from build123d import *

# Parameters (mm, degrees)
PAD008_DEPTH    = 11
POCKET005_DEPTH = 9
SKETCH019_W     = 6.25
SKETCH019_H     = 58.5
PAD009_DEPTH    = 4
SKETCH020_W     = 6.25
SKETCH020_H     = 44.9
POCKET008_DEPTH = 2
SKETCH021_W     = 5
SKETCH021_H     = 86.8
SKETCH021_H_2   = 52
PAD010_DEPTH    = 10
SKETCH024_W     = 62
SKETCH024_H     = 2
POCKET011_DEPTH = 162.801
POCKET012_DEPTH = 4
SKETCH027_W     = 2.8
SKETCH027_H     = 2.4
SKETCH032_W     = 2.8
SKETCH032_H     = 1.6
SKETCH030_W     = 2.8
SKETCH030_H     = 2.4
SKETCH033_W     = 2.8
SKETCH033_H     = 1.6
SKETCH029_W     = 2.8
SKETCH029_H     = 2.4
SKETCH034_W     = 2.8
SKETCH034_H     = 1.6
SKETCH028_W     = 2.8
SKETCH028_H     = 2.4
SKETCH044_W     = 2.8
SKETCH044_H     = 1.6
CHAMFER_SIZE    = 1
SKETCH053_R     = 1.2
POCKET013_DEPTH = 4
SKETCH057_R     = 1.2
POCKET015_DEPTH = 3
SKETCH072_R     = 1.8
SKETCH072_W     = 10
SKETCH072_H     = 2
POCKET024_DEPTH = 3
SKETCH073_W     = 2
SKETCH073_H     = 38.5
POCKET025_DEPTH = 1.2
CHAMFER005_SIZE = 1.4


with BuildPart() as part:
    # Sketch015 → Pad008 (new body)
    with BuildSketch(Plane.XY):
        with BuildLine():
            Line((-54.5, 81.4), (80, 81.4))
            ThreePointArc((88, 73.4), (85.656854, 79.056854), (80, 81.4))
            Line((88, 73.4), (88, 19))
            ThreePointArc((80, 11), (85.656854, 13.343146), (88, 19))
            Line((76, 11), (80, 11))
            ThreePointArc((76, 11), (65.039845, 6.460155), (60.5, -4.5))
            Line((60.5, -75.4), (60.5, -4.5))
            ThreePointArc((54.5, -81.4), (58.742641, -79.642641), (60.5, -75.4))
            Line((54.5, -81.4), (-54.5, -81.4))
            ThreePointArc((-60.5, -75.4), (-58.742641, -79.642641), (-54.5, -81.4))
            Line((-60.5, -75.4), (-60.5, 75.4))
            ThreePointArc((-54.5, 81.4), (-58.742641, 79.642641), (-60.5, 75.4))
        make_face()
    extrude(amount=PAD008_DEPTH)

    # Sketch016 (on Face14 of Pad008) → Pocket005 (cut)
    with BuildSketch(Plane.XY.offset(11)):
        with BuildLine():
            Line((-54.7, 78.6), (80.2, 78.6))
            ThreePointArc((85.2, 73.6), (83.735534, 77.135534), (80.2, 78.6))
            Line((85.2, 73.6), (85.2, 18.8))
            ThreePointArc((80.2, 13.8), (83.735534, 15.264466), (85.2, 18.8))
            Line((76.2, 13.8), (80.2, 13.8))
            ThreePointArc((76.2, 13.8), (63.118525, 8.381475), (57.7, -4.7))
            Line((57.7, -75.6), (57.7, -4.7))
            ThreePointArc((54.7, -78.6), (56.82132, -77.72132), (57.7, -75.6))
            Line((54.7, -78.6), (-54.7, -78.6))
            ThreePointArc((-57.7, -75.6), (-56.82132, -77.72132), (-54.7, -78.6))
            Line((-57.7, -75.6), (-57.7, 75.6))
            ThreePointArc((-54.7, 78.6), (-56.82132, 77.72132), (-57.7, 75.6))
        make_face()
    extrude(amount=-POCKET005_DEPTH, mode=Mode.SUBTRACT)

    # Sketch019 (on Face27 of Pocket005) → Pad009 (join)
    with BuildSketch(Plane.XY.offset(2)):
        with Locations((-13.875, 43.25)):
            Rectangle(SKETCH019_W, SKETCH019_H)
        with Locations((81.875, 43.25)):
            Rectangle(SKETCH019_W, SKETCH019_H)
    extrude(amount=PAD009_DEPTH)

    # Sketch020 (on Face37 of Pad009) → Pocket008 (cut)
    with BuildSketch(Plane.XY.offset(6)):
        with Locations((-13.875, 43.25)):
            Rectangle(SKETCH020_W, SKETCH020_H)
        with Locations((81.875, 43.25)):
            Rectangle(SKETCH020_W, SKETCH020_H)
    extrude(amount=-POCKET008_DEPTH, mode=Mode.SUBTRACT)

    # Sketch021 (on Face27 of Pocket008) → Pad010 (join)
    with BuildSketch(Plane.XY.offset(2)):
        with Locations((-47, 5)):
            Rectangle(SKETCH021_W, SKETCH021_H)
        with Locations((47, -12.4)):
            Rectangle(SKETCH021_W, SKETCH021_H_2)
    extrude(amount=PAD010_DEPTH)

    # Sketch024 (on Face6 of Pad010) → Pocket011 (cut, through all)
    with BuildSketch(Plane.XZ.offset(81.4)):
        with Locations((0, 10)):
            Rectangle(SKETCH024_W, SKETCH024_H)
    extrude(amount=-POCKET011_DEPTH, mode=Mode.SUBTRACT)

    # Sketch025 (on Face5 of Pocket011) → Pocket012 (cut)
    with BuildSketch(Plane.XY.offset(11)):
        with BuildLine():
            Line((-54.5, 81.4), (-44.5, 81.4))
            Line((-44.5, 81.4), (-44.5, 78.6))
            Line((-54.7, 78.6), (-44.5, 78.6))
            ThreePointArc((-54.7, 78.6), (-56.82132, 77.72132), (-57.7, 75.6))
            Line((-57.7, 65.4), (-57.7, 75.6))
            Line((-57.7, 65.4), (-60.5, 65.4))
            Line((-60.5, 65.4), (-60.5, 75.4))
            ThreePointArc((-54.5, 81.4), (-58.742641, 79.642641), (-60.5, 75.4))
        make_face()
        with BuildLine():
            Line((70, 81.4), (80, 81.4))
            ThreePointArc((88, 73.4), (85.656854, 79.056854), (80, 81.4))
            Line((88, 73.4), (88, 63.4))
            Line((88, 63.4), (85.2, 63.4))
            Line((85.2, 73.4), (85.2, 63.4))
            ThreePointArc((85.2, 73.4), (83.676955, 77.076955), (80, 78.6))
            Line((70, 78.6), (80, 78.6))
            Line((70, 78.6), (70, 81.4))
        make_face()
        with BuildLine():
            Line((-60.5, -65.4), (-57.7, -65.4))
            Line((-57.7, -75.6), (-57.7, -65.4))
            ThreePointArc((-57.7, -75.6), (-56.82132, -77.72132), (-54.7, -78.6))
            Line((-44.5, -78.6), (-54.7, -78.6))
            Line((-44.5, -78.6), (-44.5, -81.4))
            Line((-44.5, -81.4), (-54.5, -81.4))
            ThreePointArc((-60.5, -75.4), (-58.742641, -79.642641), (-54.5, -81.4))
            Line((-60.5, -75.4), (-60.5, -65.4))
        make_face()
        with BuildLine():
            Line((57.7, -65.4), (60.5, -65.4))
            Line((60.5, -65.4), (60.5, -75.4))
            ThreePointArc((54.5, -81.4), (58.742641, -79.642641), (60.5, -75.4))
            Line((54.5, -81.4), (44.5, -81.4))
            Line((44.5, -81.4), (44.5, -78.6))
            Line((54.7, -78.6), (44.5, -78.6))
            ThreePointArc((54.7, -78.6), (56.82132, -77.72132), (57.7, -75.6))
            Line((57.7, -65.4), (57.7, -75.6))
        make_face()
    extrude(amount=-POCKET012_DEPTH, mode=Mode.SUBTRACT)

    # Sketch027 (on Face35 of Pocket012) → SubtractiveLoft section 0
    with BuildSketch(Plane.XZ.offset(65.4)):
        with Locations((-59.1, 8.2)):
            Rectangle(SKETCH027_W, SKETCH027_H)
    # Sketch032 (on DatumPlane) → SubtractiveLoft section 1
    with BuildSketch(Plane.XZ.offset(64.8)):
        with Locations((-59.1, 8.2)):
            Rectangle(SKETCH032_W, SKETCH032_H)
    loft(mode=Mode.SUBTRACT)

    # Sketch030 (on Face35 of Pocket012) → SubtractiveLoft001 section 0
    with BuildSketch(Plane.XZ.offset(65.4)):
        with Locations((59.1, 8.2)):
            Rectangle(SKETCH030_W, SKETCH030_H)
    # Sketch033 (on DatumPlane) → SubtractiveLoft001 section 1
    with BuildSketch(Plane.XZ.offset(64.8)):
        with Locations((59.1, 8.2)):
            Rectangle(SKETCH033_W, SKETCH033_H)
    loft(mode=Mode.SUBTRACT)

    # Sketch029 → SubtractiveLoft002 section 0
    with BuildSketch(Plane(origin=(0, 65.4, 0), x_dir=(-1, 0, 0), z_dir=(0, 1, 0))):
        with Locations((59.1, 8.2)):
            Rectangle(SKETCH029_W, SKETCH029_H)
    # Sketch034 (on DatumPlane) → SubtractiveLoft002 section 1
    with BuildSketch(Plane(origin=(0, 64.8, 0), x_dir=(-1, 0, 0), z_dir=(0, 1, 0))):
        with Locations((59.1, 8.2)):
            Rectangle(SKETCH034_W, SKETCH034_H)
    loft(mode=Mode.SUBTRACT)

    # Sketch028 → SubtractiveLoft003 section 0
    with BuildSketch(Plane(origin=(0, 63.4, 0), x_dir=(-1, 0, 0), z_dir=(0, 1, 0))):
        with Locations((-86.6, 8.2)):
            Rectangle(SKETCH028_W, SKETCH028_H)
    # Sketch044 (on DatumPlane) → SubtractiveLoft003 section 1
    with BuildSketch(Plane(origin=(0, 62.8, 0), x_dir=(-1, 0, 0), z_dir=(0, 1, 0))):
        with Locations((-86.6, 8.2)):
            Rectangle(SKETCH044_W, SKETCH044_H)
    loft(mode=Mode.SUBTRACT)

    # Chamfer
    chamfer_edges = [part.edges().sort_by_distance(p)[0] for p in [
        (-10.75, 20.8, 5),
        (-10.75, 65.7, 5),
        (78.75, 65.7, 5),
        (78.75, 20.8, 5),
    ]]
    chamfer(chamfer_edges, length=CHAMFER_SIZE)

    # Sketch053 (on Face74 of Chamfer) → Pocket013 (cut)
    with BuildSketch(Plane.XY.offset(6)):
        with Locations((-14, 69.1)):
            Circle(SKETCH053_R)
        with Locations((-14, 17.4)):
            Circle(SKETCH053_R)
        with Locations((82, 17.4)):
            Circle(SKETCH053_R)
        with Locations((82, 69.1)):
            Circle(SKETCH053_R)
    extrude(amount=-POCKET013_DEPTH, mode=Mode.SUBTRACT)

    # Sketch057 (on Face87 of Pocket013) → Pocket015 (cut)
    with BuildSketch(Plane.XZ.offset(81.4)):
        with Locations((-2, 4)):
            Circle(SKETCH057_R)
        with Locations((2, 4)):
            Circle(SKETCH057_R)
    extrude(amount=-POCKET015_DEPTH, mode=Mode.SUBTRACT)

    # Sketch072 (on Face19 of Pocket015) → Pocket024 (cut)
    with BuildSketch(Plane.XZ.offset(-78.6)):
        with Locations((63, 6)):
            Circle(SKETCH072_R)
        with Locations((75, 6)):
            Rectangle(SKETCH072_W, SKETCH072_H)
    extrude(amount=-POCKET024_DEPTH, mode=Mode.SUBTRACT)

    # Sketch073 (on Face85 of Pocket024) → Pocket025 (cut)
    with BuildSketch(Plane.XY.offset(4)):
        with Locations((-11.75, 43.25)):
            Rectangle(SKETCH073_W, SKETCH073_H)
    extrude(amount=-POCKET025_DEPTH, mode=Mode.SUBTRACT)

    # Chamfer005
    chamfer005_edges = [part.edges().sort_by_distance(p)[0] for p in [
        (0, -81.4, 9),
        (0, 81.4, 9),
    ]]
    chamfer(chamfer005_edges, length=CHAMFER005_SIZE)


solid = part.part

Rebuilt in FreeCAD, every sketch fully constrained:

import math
import FreeCAD as App
import Part
import Sketcher


def edges_at(feature, points):
    """Names of the edges that pass closest to the given points."""
    edges = feature.Shape.Edges
    near = lambda p: min(range(len(edges)), key=lambda i: edges[i].distToShape(Part.Vertex(*p))[0])
    return sorted({f"Edge{near(p) + 1}" for p in points})

doc = App.newDocument("Part")
body = doc.addObject("PartDesign::Body", "Body")

sketch1 = body.newObject("Sketcher::SketchObject", "Sketch")
sketch1.AttachmentSupport = (doc.getObject("XY_Plane"), [""])
sketch1.MapMode = "FlatFace"
sketch1.addGeometry(Part.LineSegment(App.Vector(80, 81.4, 0), App.Vector(-54.5, 81.4, 0)), False)
sketch1.addGeometry(Part.ArcOfCircle(Part.Circle(App.Vector(-54.500001, 75.400001, 0), App.Vector(0, 0, 1), 5.999999), math.radians(89.99999), math.radians(180.00001)), False)
sketch1.addGeometry(Part.LineSegment(App.Vector(-60.5, 75.4, 0), App.Vector(-60.5, -75.4, 0)), False)
sketch1.addGeometry(Part.ArcOfCircle(Part.Circle(App.Vector(-54.500001, -75.400001, 0), App.Vector(0, 0, 1), 5.999999), math.radians(179.99999), math.radians(270.00001)), False)
sketch1.addGeometry(Part.LineSegment(App.Vector(-54.5, -81.4, 0), App.Vector(54.5, -81.4, 0)), False)
sketch1.addGeometry(Part.ArcOfCircle(Part.Circle(App.Vector(54.500001, -75.400001, 0), App.Vector(0, 0, 1), 5.999999), math.radians(-90.00001), math.radians(0.00001)), False)
sketch1.addGeometry(Part.LineSegment(App.Vector(60.5, -75.4, 0), App.Vector(60.5, -4.5, 0)), False)
sketch1.addGeometry(Part.ArcOfCircle(Part.Circle(App.Vector(76, -4.5, 0), App.Vector(0, 0, 1), 15.5), math.radians(90.000001), math.radians(179.999999)), False)
sketch1.addGeometry(Part.LineSegment(App.Vector(76, 11, 0), App.Vector(80, 11, 0)), False)
sketch1.addGeometry(Part.ArcOfCircle(Part.Circle(App.Vector(79.999999, 19.000001, 0), App.Vector(0, 0, 1), 8.000001), math.radians(-89.999994), math.radians(-0.000006)), False)
sketch1.addGeometry(Part.LineSegment(App.Vector(88, 19, 0), App.Vector(88, 73.4, 0)), False)
sketch1.addGeometry(Part.ArcOfCircle(Part.Circle(App.Vector(79.999999, 73.399999, 0), App.Vector(0, 0, 1), 8.000001), math.radians(0.000006), math.radians(89.999994)), False)
sketch1.addConstraint(Sketcher.Constraint("Tangent", 0, 2, 1, 1))
sketch1.addConstraint(Sketcher.Constraint("Tangent", 1, 2, 2, 1))
sketch1.addConstraint(Sketcher.Constraint("Tangent", 2, 2, 3, 1))
sketch1.addConstraint(Sketcher.Constraint("Tangent", 3, 2, 4, 1))
sketch1.addConstraint(Sketcher.Constraint("Tangent", 4, 2, 5, 1))
sketch1.addConstraint(Sketcher.Constraint("Tangent", 5, 2, 6, 1))
sketch1.addConstraint(Sketcher.Constraint("Tangent", 6, 2, 7, 2))
sketch1.addConstraint(Sketcher.Constraint("Tangent", 7, 1, 8, 1))
sketch1.addConstraint(Sketcher.Constraint("Tangent", 8, 2, 9, 1))
sketch1.addConstraint(Sketcher.Constraint("Tangent", 9, 2, 10, 1))
sketch1.addConstraint(Sketcher.Constraint("Tangent", 10, 2, 11, 1))
sketch1.addConstraint(Sketcher.Constraint("Tangent", 11, 2, 0, 1))
sketch1.addConstraint(Sketcher.Constraint("Horizontal", 0))
sketch1.addConstraint(Sketcher.Constraint("Vertical", 2))
sketch1.addConstraint(Sketcher.Constraint("Horizontal", 4))
sketch1.addConstraint(Sketcher.Constraint("Vertical", 6))
sketch1.addConstraint(Sketcher.Constraint("Horizontal", 8))
sketch1.addConstraint(Sketcher.Constraint("Vertical", 10))
sketch1.addConstraint(Sketcher.Constraint("Equal", 1, 3))
sketch1.addConstraint(Sketcher.Constraint("Equal", 3, 5))
sketch1.addConstraint(Sketcher.Constraint("Equal", 9, 11))
sketch1.addConstraint(Sketcher.Constraint("Symmetric", 1, 3, 5, 3, -1, 1))
sketch1.addConstraint(Sketcher.Constraint("Radius", 1, 5.999999))
sketch1.addConstraint(Sketcher.Constraint("Radius", 9, 8.000001))
sketch1.addConstraint(Sketcher.Constraint("Radius", 7, 15.5))
sketch1.addConstraint(Sketcher.Constraint("DistanceX", 4, 1, 4, 2, 109.0))
sketch1.addConstraint(Sketcher.Constraint("DistanceX", 8, 1, 8, 2, 4.0))
sketch1.addConstraint(Sketcher.Constraint("DistanceY", 2, 2, 2, 1, 150.8))
sketch1.addConstraint(Sketcher.Constraint("DistanceY", 6, 1, 6, 2, 70.9))
pad1 = body.newObject("PartDesign::Pad", "Pad")
pad1.Profile = sketch1
pad1.Length = 11

sketch2 = body.newObject("Sketcher::SketchObject", "Sketch001")
sketch2.AttachmentSupport = (doc.getObject("XY_Plane"), [""])
sketch2.MapMode = "FlatFace"
sketch2.AttachmentOffset = App.Placement(App.Vector(0, 0, 11), App.Rotation())
sketch2.addGeometry(Part.LineSegment(App.Vector(80.2, 78.6, 0), App.Vector(-54.7, 78.6, 0)), False)
sketch2.addGeometry(Part.ArcOfCircle(Part.Circle(App.Vector(-54.699999, 75.599999, 0), App.Vector(0, 0, 1), 3.000001), math.radians(90.000022), math.radians(179.999978)), False)
sketch2.addGeometry(Part.LineSegment(App.Vector(-57.7, 75.6, 0), App.Vector(-57.7, -75.6, 0)), False)
sketch2.addGeometry(Part.ArcOfCircle(Part.Circle(App.Vector(-54.699999, -75.599999, 0), App.Vector(0, 0, 1), 3.000001), math.radians(-179.999978), math.radians(-90.000022)), False)
sketch2.addGeometry(Part.LineSegment(App.Vector(-54.7, -78.6, 0), App.Vector(54.7, -78.6, 0)), False)
sketch2.addGeometry(Part.ArcOfCircle(Part.Circle(App.Vector(54.699999, -75.599999, 0), App.Vector(0, 0, 1), 3.000001), math.radians(-89.999978), math.radians(-0.000022)), False)
sketch2.addGeometry(Part.LineSegment(App.Vector(57.7, -75.6, 0), App.Vector(57.7, -4.7, 0)), False)
sketch2.addGeometry(Part.ArcOfCircle(Part.Circle(App.Vector(76.200002, -4.700002, 0), App.Vector(0, 0, 1), 18.500002), math.radians(90.000005), math.radians(179.999995)), False)
sketch2.addGeometry(Part.LineSegment(App.Vector(76.2, 13.8, 0), App.Vector(80.2, 13.8, 0)), False)
sketch2.addGeometry(Part.ArcOfCircle(Part.Circle(App.Vector(80.2, 18.8, 0), App.Vector(0, 0, 1), 5), math.radians(-90.000004), math.radians(0.000004)), False)
sketch2.addGeometry(Part.LineSegment(App.Vector(85.2, 18.8, 0), App.Vector(85.2, 73.6, 0)), False)
sketch2.addGeometry(Part.ArcOfCircle(Part.Circle(App.Vector(80.2, 73.6, 0), App.Vector(0, 0, 1), 5), math.radians(-0.000004), math.radians(90.000004)), False)
sketch2.addConstraint(Sketcher.Constraint("Tangent", 0, 2, 1, 1))
sketch2.addConstraint(Sketcher.Constraint("Tangent", 1, 2, 2, 1))
sketch2.addConstraint(Sketcher.Constraint("Tangent", 2, 2, 3, 1))
sketch2.addConstraint(Sketcher.Constraint("Tangent", 3, 2, 4, 1))
sketch2.addConstraint(Sketcher.Constraint("Tangent", 4, 2, 5, 1))
sketch2.addConstraint(Sketcher.Constraint("Tangent", 5, 2, 6, 1))
sketch2.addConstraint(Sketcher.Constraint("Tangent", 6, 2, 7, 2))
sketch2.addConstraint(Sketcher.Constraint("Tangent", 7, 1, 8, 1))
sketch2.addConstraint(Sketcher.Constraint("Tangent", 8, 2, 9, 1))
sketch2.addConstraint(Sketcher.Constraint("Tangent", 9, 2, 10, 1))
sketch2.addConstraint(Sketcher.Constraint("Tangent", 10, 2, 11, 1))
sketch2.addConstraint(Sketcher.Constraint("Tangent", 11, 2, 0, 1))
sketch2.addConstraint(Sketcher.Constraint("Horizontal", 0))
sketch2.addConstraint(Sketcher.Constraint("Vertical", 2))
sketch2.addConstraint(Sketcher.Constraint("Horizontal", 4))
sketch2.addConstraint(Sketcher.Constraint("Vertical", 6))
sketch2.addConstraint(Sketcher.Constraint("Horizontal", 8))
sketch2.addConstraint(Sketcher.Constraint("Vertical", 10))
sketch2.addConstraint(Sketcher.Constraint("Equal", 1, 3))
sketch2.addConstraint(Sketcher.Constraint("Equal", 3, 5))
sketch2.addConstraint(Sketcher.Constraint("Equal", 9, 11))
sketch2.addConstraint(Sketcher.Constraint("Symmetric", 1, 3, 5, 3, -1, 1))
sketch2.addConstraint(Sketcher.Constraint("Radius", 1, 3.000001))
sketch2.addConstraint(Sketcher.Constraint("Radius", 9, 5.0))
sketch2.addConstraint(Sketcher.Constraint("Radius", 7, 18.500002))
sketch2.addConstraint(Sketcher.Constraint("DistanceX", 8, 1, 8, 2, 4.0))
sketch2.addConstraint(Sketcher.Constraint("DistanceX", 0, 2, 0, 1, 134.9))
sketch2.addConstraint(Sketcher.Constraint("DistanceY", 2, 2, 2, 1, 151.2))
sketch2.addConstraint(Sketcher.Constraint("DistanceY", 6, 1, 6, 2, 70.9))
pocket1 = body.newObject("PartDesign::Pocket", "Pocket")
pocket1.Profile = sketch2
pocket1.Length = 9

sketch3 = body.newObject("Sketcher::SketchObject", "Sketch002")
sketch3.AttachmentSupport = (doc.getObject("XY_Plane"), [""])
sketch3.MapMode = "FlatFace"
sketch3.AttachmentOffset = App.Placement(App.Vector(0, 0, 2), App.Rotation())
sketch3.addGeometry(Part.LineSegment(App.Vector(-17, 72.5, 0), App.Vector(-17, 14, 0)), False)
sketch3.addGeometry(Part.LineSegment(App.Vector(-17, 14, 0), App.Vector(-10.75, 14, 0)), False)
sketch3.addGeometry(Part.LineSegment(App.Vector(-10.75, 14, 0), App.Vector(-10.75, 72.5, 0)), False)
sketch3.addGeometry(Part.LineSegment(App.Vector(-10.75, 72.5, 0), App.Vector(-17, 72.5, 0)), False)
sketch3.addGeometry(Part.LineSegment(App.Vector(78.75, 72.5, 0), App.Vector(78.75, 14, 0)), False)
sketch3.addGeometry(Part.LineSegment(App.Vector(78.75, 14, 0), App.Vector(85, 14, 0)), False)
sketch3.addGeometry(Part.LineSegment(App.Vector(85, 14, 0), App.Vector(85, 72.5, 0)), False)
sketch3.addGeometry(Part.LineSegment(App.Vector(85, 72.5, 0), App.Vector(78.75, 72.5, 0)), False)
sketch3.addConstraint(Sketcher.Constraint("Coincident", 0, 2, 1, 1))
sketch3.addConstraint(Sketcher.Constraint("Coincident", 1, 2, 2, 1))
sketch3.addConstraint(Sketcher.Constraint("Coincident", 2, 2, 3, 1))
sketch3.addConstraint(Sketcher.Constraint("Coincident", 3, 2, 0, 1))
sketch3.addConstraint(Sketcher.Constraint("Coincident", 4, 2, 5, 1))
sketch3.addConstraint(Sketcher.Constraint("Coincident", 5, 2, 6, 1))
sketch3.addConstraint(Sketcher.Constraint("Coincident", 6, 2, 7, 1))
sketch3.addConstraint(Sketcher.Constraint("Coincident", 7, 2, 4, 1))
sketch3.addConstraint(Sketcher.Constraint("Vertical", 0))
sketch3.addConstraint(Sketcher.Constraint("Horizontal", 1))
sketch3.addConstraint(Sketcher.Constraint("Vertical", 2))
sketch3.addConstraint(Sketcher.Constraint("Horizontal", 3))
sketch3.addConstraint(Sketcher.Constraint("Vertical", 4))
sketch3.addConstraint(Sketcher.Constraint("Horizontal", 5))
sketch3.addConstraint(Sketcher.Constraint("Vertical", 6))
sketch3.addConstraint(Sketcher.Constraint("Horizontal", 7))
sketch3.addConstraint(Sketcher.Constraint("Horizontal", 1, 2, 4, 2))
sketch3.addConstraint(Sketcher.Constraint("Horizontal", 3, 2, 6, 2))
sketch3.addConstraint(Sketcher.Constraint("Equal", 3, 5))
sketch3.addConstraint(Sketcher.Constraint("DistanceY", 0, 2, 0, 1, 58.5))
sketch3.addConstraint(Sketcher.Constraint("DistanceX", 0, 2, -1, 1, 17.0))
sketch3.addConstraint(Sketcher.Constraint("DistanceY", -1, 1, 0, 2, 14.0))
sketch3.addConstraint(Sketcher.Constraint("DistanceX", -1, 1, 5, 2, 85.0))
sketch3.addConstraint(Sketcher.Constraint("DistanceX", 1, 1, 1, 2, 6.25))
pad2 = body.newObject("PartDesign::Pad", "Pad001")
pad2.Profile = sketch3
pad2.Length = 4

sketch4 = body.newObject("Sketcher::SketchObject", "Sketch003")
sketch4.AttachmentSupport = (doc.getObject("XY_Plane"), [""])
sketch4.MapMode = "FlatFace"
sketch4.AttachmentOffset = App.Placement(App.Vector(0, 0, 6), App.Rotation())
sketch4.addGeometry(Part.LineSegment(App.Vector(-17, 65.7, 0), App.Vector(-17, 20.8, 0)), False)
sketch4.addGeometry(Part.LineSegment(App.Vector(-17, 20.8, 0), App.Vector(-10.75, 20.8, 0)), False)
sketch4.addGeometry(Part.LineSegment(App.Vector(-10.75, 20.8, 0), App.Vector(-10.75, 65.7, 0)), False)
sketch4.addGeometry(Part.LineSegment(App.Vector(-10.75, 65.7, 0), App.Vector(-17, 65.7, 0)), False)
sketch4.addGeometry(Part.LineSegment(App.Vector(78.75, 65.7, 0), App.Vector(78.75, 20.8, 0)), False)
sketch4.addGeometry(Part.LineSegment(App.Vector(78.75, 20.8, 0), App.Vector(85, 20.8, 0)), False)
sketch4.addGeometry(Part.LineSegment(App.Vector(85, 20.8, 0), App.Vector(85, 65.7, 0)), False)
sketch4.addGeometry(Part.LineSegment(App.Vector(85, 65.7, 0), App.Vector(78.75, 65.7, 0)), False)
sketch4.addConstraint(Sketcher.Constraint("Coincident", 0, 2, 1, 1))
sketch4.addConstraint(Sketcher.Constraint("Coincident", 1, 2, 2, 1))
sketch4.addConstraint(Sketcher.Constraint("Coincident", 2, 2, 3, 1))
sketch4.addConstraint(Sketcher.Constraint("Coincident", 3, 2, 0, 1))
sketch4.addConstraint(Sketcher.Constraint("Coincident", 4, 2, 5, 1))
sketch4.addConstraint(Sketcher.Constraint("Coincident", 5, 2, 6, 1))
sketch4.addConstraint(Sketcher.Constraint("Coincident", 6, 2, 7, 1))
sketch4.addConstraint(Sketcher.Constraint("Coincident", 7, 2, 4, 1))
sketch4.addConstraint(Sketcher.Constraint("Vertical", 0))
sketch4.addConstraint(Sketcher.Constraint("Horizontal", 1))
sketch4.addConstraint(Sketcher.Constraint("Vertical", 2))
sketch4.addConstraint(Sketcher.Constraint("Horizontal", 3))
sketch4.addConstraint(Sketcher.Constraint("Vertical", 4))
sketch4.addConstraint(Sketcher.Constraint("Horizontal", 5))
sketch4.addConstraint(Sketcher.Constraint("Vertical", 6))
sketch4.addConstraint(Sketcher.Constraint("Horizontal", 7))
sketch4.addConstraint(Sketcher.Constraint("Horizontal", 1, 2, 4, 2))
sketch4.addConstraint(Sketcher.Constraint("Horizontal", 3, 2, 6, 2))
sketch4.addConstraint(Sketcher.Constraint("Equal", 3, 5))
sketch4.addConstraint(Sketcher.Constraint("DistanceY", 0, 2, 0, 1, 44.9))
sketch4.addConstraint(Sketcher.Constraint("DistanceX", 0, 2, -1, 1, 17.0))
sketch4.addConstraint(Sketcher.Constraint("DistanceX", -1, 1, 5, 2, 85.0))
sketch4.addConstraint(Sketcher.Constraint("DistanceX", 1, 1, 1, 2, 6.25))
sketch4.addConstraint(Sketcher.Constraint("DistanceY", -1, 1, 0, 2, 20.8))
pocket2 = body.newObject("PartDesign::Pocket", "Pocket001")
pocket2.Profile = sketch4
pocket2.Length = 2

sketch5 = body.newObject("Sketcher::SketchObject", "Sketch004")
sketch5.AttachmentSupport = (doc.getObject("XY_Plane"), [""])
sketch5.MapMode = "FlatFace"
sketch5.AttachmentOffset = App.Placement(App.Vector(0, 0, 2), App.Rotation())
sketch5.addGeometry(Part.LineSegment(App.Vector(-49.5, 48.4, 0), App.Vector(-49.5, -38.4, 0)), False)
sketch5.addGeometry(Part.LineSegment(App.Vector(-49.5, -38.4, 0), App.Vector(-44.5, -38.4, 0)), False)
sketch5.addGeometry(Part.LineSegment(App.Vector(-44.5, -38.4, 0), App.Vector(-44.5, 48.4, 0)), False)
sketch5.addGeometry(Part.LineSegment(App.Vector(-44.5, 48.4, 0), App.Vector(-49.5, 48.4, 0)), False)
sketch5.addGeometry(Part.LineSegment(App.Vector(44.5, 13.6, 0), App.Vector(44.5, -38.4, 0)), False)
sketch5.addGeometry(Part.LineSegment(App.Vector(44.5, -38.4, 0), App.Vector(49.5, -38.4, 0)), False)
sketch5.addGeometry(Part.LineSegment(App.Vector(49.5, -38.4, 0), App.Vector(49.5, 13.6, 0)), False)
sketch5.addGeometry(Part.LineSegment(App.Vector(49.5, 13.6, 0), App.Vector(44.5, 13.6, 0)), False)
sketch5.addConstraint(Sketcher.Constraint("Coincident", 0, 2, 1, 1))
sketch5.addConstraint(Sketcher.Constraint("Coincident", 1, 2, 2, 1))
sketch5.addConstraint(Sketcher.Constraint("Coincident", 2, 2, 3, 1))
sketch5.addConstraint(Sketcher.Constraint("Coincident", 3, 2, 0, 1))
sketch5.addConstraint(Sketcher.Constraint("Coincident", 4, 2, 5, 1))
sketch5.addConstraint(Sketcher.Constraint("Coincident", 5, 2, 6, 1))
sketch5.addConstraint(Sketcher.Constraint("Coincident", 6, 2, 7, 1))
sketch5.addConstraint(Sketcher.Constraint("Coincident", 7, 2, 4, 1))
sketch5.addConstraint(Sketcher.Constraint("Vertical", 0))
sketch5.addConstraint(Sketcher.Constraint("Horizontal", 1))
sketch5.addConstraint(Sketcher.Constraint("Vertical", 2))
sketch5.addConstraint(Sketcher.Constraint("Horizontal", 3))
sketch5.addConstraint(Sketcher.Constraint("Vertical", 4))
sketch5.addConstraint(Sketcher.Constraint("Horizontal", 5))
sketch5.addConstraint(Sketcher.Constraint("Vertical", 6))
sketch5.addConstraint(Sketcher.Constraint("Horizontal", 7))
sketch5.addConstraint(Sketcher.Constraint("Symmetric", 1, 2, 4, 2, -2))
sketch5.addConstraint(Sketcher.Constraint("Equal", 3, 5))
sketch5.addConstraint(Sketcher.Constraint("DistanceX", 1, 1, 1, 2, 5.0))
sketch5.addConstraint(Sketcher.Constraint("DistanceY", 4, 2, 4, 1, 52.0))
sketch5.addConstraint(Sketcher.Constraint("DistanceY", 0, 2, 0, 1, 86.8))
sketch5.addConstraint(Sketcher.Constraint("DistanceX", 1, 2, 4, 2, 89.0))
sketch5.addConstraint(Sketcher.Constraint("DistanceY", 0, 2, -1, 1, 38.4))
pad3 = body.newObject("PartDesign::Pad", "Pad002")
pad3.Profile = sketch5
pad3.Length = 10

sketch6 = body.newObject("Sketcher::SketchObject", "Sketch005")
sketch6.AttachmentSupport = (doc.getObject("XZ_Plane"), [""])
sketch6.MapMode = "FlatFace"
sketch6.AttachmentOffset = App.Placement(App.Vector(0, 0, 81.4), App.Rotation())
sketch6.addGeometry(Part.LineSegment(App.Vector(-31, 11, 0), App.Vector(-31, 9, 0)), False)
sketch6.addGeometry(Part.LineSegment(App.Vector(-31, 9, 0), App.Vector(31, 9, 0)), False)
sketch6.addGeometry(Part.LineSegment(App.Vector(31, 9, 0), App.Vector(31, 11, 0)), False)
sketch6.addGeometry(Part.LineSegment(App.Vector(31, 11, 0), App.Vector(-31, 11, 0)), False)
sketch6.addConstraint(Sketcher.Constraint("Coincident", 0, 2, 1, 1))
sketch6.addConstraint(Sketcher.Constraint("Coincident", 1, 2, 2, 1))
sketch6.addConstraint(Sketcher.Constraint("Coincident", 2, 2, 3, 1))
sketch6.addConstraint(Sketcher.Constraint("Coincident", 3, 2, 0, 1))
sketch6.addConstraint(Sketcher.Constraint("Vertical", 0))
sketch6.addConstraint(Sketcher.Constraint("Horizontal", 1))
sketch6.addConstraint(Sketcher.Constraint("Vertical", 2))
sketch6.addConstraint(Sketcher.Constraint("Horizontal", 3))
sketch6.addConstraint(Sketcher.Constraint("DistanceX", 1, 1, 1, 2, 62.0))
sketch6.addConstraint(Sketcher.Constraint("DistanceY", 0, 2, 0, 1, 2.0))
sketch6.addConstraint(Sketcher.Constraint("DistanceX", 0, 2, -1, 1, 31.0))
sketch6.addConstraint(Sketcher.Constraint("DistanceY", -1, 1, 0, 2, 9.0))
pocket3 = body.newObject("PartDesign::Pocket", "Pocket002")
pocket3.Profile = sketch6
pocket3.Type = "ThroughAll"

sketch7 = body.newObject("Sketcher::SketchObject", "Sketch006")
sketch7.AttachmentSupport = (doc.getObject("XY_Plane"), [""])
sketch7.MapMode = "FlatFace"
sketch7.AttachmentOffset = App.Placement(App.Vector(0, 0, 11), App.Rotation())
sketch7.addGeometry(Part.LineSegment(App.Vector(-44.5, 81.4, 0), App.Vector(-54.5, 81.4, 0)), False)
sketch7.addGeometry(Part.ArcOfCircle(Part.Circle(App.Vector(-54.500001, 75.400001, 0), App.Vector(0, 0, 1), 5.999999), math.radians(89.99999), math.radians(180.00001)), False)
sketch7.addGeometry(Part.LineSegment(App.Vector(-60.5, 75.4, 0), App.Vector(-60.5, 65.4, 0)), False)
sketch7.addGeometry(Part.LineSegment(App.Vector(-60.5, 65.4, 0), App.Vector(-57.7, 65.4, 0)), False)
sketch7.addGeometry(Part.LineSegment(App.Vector(-57.7, 65.4, 0), App.Vector(-57.7, 75.6, 0)), False)
sketch7.addGeometry(Part.ArcOfCircle(Part.Circle(App.Vector(-54.699999, 75.599999, 0), App.Vector(0, 0, 1), 3.000001), math.radians(90.000022), math.radians(179.999978)), False)
sketch7.addGeometry(Part.LineSegment(App.Vector(-54.7, 78.6, 0), App.Vector(-44.5, 78.6, 0)), False)
sketch7.addGeometry(Part.LineSegment(App.Vector(-44.5, 78.6, 0), App.Vector(-44.5, 81.4, 0)), False)
sketch7.addGeometry(Part.LineSegment(App.Vector(80, 81.4, 0), App.Vector(70, 81.4, 0)), False)
sketch7.addGeometry(Part.LineSegment(App.Vector(70, 81.4, 0), App.Vector(70, 78.6, 0)), False)
sketch7.addGeometry(Part.LineSegment(App.Vector(70, 78.6, 0), App.Vector(80, 78.6, 0)), False)
sketch7.addGeometry(Part.ArcOfCircle(Part.Circle(App.Vector(79.999999, 73.399999, 0), App.Vector(0, 0, 1), 5.200001), math.radians(0.00001), math.radians(89.99999)), False)
sketch7.addGeometry(Part.LineSegment(App.Vector(85.2, 73.4, 0), App.Vector(85.2, 63.4, 0)), False)
sketch7.addGeometry(Part.LineSegment(App.Vector(85.2, 63.4, 0), App.Vector(88, 63.4, 0)), False)
sketch7.addGeometry(Part.LineSegment(App.Vector(88, 63.4, 0), App.Vector(88, 73.4, 0)), False)
sketch7.addGeometry(Part.ArcOfCircle(Part.Circle(App.Vector(79.999999, 73.399999, 0), App.Vector(0, 0, 1), 8.000001), math.radians(0.000006), math.radians(89.999994)), False)
sketch7.addGeometry(Part.LineSegment(App.Vector(-57.7, -65.4, 0), App.Vector(-60.5, -65.4, 0)), False)
sketch7.addGeometry(Part.LineSegment(App.Vector(-60.5, -65.4, 0), App.Vector(-60.5, -75.4, 0)), False)
sketch7.addGeometry(Part.ArcOfCircle(Part.Circle(App.Vector(-54.500001, -75.400001, 0), App.Vector(0, 0, 1), 5.999999), math.radians(179.99999), math.radians(270.00001)), False)
sketch7.addGeometry(Part.LineSegment(App.Vector(-54.5, -81.4, 0), App.Vector(-44.5, -81.4, 0)), False)
sketch7.addGeometry(Part.LineSegment(App.Vector(-44.5, -81.4, 0), App.Vector(-44.5, -78.6, 0)), False)
sketch7.addGeometry(Part.LineSegment(App.Vector(-44.5, -78.6, 0), App.Vector(-54.7, -78.6, 0)), False)
sketch7.addGeometry(Part.ArcOfCircle(Part.Circle(App.Vector(-54.699999, -75.599999, 0), App.Vector(0, 0, 1), 3.000001), math.radians(-179.999978), math.radians(-90.000022)), False)
sketch7.addGeometry(Part.LineSegment(App.Vector(-57.7, -75.6, 0), App.Vector(-57.7, -65.4, 0)), False)
sketch7.addGeometry(Part.LineSegment(App.Vector(60.5, -65.4, 0), App.Vector(57.7, -65.4, 0)), False)
sketch7.addGeometry(Part.LineSegment(App.Vector(57.7, -65.4, 0), App.Vector(57.7, -75.6, 0)), False)
sketch7.addGeometry(Part.ArcOfCircle(Part.Circle(App.Vector(54.699999, -75.599999, 0), App.Vector(0, 0, 1), 3.000001), math.radians(-89.999978), math.radians(-0.000022)), False)
sketch7.addGeometry(Part.LineSegment(App.Vector(54.7, -78.6, 0), App.Vector(44.5, -78.6, 0)), False)
sketch7.addGeometry(Part.LineSegment(App.Vector(44.5, -78.6, 0), App.Vector(44.5, -81.4, 0)), False)
sketch7.addGeometry(Part.LineSegment(App.Vector(44.5, -81.4, 0), App.Vector(54.5, -81.4, 0)), False)
sketch7.addGeometry(Part.ArcOfCircle(Part.Circle(App.Vector(54.500001, -75.400001, 0), App.Vector(0, 0, 1), 5.999999), math.radians(-90.00001), math.radians(0.00001)), False)
sketch7.addGeometry(Part.LineSegment(App.Vector(60.5, -75.4, 0), App.Vector(60.5, -65.4, 0)), False)
sketch7.addConstraint(Sketcher.Constraint("Tangent", 0, 2, 1, 1))
sketch7.addConstraint(Sketcher.Constraint("Tangent", 1, 2, 2, 1))
sketch7.addConstraint(Sketcher.Constraint("Coincident", 2, 2, 3, 1))
sketch7.addConstraint(Sketcher.Constraint("Coincident", 3, 2, 4, 1))
sketch7.addConstraint(Sketcher.Constraint("Tangent", 4, 2, 5, 2))
sketch7.addConstraint(Sketcher.Constraint("Tangent", 5, 1, 6, 1))
sketch7.addConstraint(Sketcher.Constraint("Coincident", 6, 2, 7, 1))
sketch7.addConstraint(Sketcher.Constraint("Coincident", 7, 2, 0, 1))
sketch7.addConstraint(Sketcher.Constraint("Coincident", 8, 2, 9, 1))
sketch7.addConstraint(Sketcher.Constraint("Coincident", 9, 2, 10, 1))
sketch7.addConstraint(Sketcher.Constraint("Tangent", 10, 2, 11, 2))
sketch7.addConstraint(Sketcher.Constraint("Tangent", 11, 1, 12, 1))
sketch7.addConstraint(Sketcher.Constraint("Coincident", 12, 2, 13, 1))
sketch7.addConstraint(Sketcher.Constraint("Coincident", 13, 2, 14, 1))
sketch7.addConstraint(Sketcher.Constraint("Tangent", 14, 2, 15, 1))
sketch7.addConstraint(Sketcher.Constraint("Tangent", 15, 2, 8, 1))
sketch7.addConstraint(Sketcher.Constraint("Coincident", 16, 2, 17, 1))
sketch7.addConstraint(Sketcher.Constraint("Tangent", 17, 2, 18, 1))
sketch7.addConstraint(Sketcher.Constraint("Tangent", 18, 2, 19, 1))
sketch7.addConstraint(Sketcher.Constraint("Coincident", 19, 2, 20, 1))
sketch7.addConstraint(Sketcher.Constraint("Coincident", 20, 2, 21, 1))
sketch7.addConstraint(Sketcher.Constraint("Tangent", 21, 2, 22, 2))
sketch7.addConstraint(Sketcher.Constraint("Tangent", 22, 1, 23, 1))
sketch7.addConstraint(Sketcher.Constraint("Coincident", 23, 2, 16, 1))
sketch7.addConstraint(Sketcher.Constraint("Coincident", 24, 2, 25, 1))
sketch7.addConstraint(Sketcher.Constraint("Tangent", 25, 2, 26, 2))
sketch7.addConstraint(Sketcher.Constraint("Tangent", 26, 1, 27, 1))
sketch7.addConstraint(Sketcher.Constraint("Coincident", 27, 2, 28, 1))
sketch7.addConstraint(Sketcher.Constraint("Coincident", 28, 2, 29, 1))
sketch7.addConstraint(Sketcher.Constraint("Tangent", 29, 2, 30, 1))
sketch7.addConstraint(Sketcher.Constraint("Tangent", 30, 2, 31, 1))
sketch7.addConstraint(Sketcher.Constraint("Coincident", 31, 2, 24, 1))
sketch7.addConstraint(Sketcher.Constraint("Horizontal", 0))
sketch7.addConstraint(Sketcher.Constraint("Vertical", 2))
sketch7.addConstraint(Sketcher.Constraint("Horizontal", 3))
sketch7.addConstraint(Sketcher.Constraint("Vertical", 4))
sketch7.addConstraint(Sketcher.Constraint("Horizontal", 6))
sketch7.addConstraint(Sketcher.Constraint("Vertical", 7))
sketch7.addConstraint(Sketcher.Constraint("Horizontal", 8))
sketch7.addConstraint(Sketcher.Constraint("Vertical", 9))
sketch7.addConstraint(Sketcher.Constraint("Horizontal", 10))
sketch7.addConstraint(Sketcher.Constraint("Vertical", 12))
sketch7.addConstraint(Sketcher.Constraint("Horizontal", 13))
sketch7.addConstraint(Sketcher.Constraint("Vertical", 14))
sketch7.addConstraint(Sketcher.Constraint("Horizontal", 16))
sketch7.addConstraint(Sketcher.Constraint("Vertical", 17))
sketch7.addConstraint(Sketcher.Constraint("Horizontal", 19))
sketch7.addConstraint(Sketcher.Constraint("Vertical", 20))
sketch7.addConstraint(Sketcher.Constraint("Horizontal", 21))
sketch7.addConstraint(Sketcher.Constraint("Vertical", 23))
sketch7.addConstraint(Sketcher.Constraint("Horizontal", 24))
sketch7.addConstraint(Sketcher.Constraint("Vertical", 25))
sketch7.addConstraint(Sketcher.Constraint("Horizontal", 27))
sketch7.addConstraint(Sketcher.Constraint("Vertical", 28))
sketch7.addConstraint(Sketcher.Constraint("Horizontal", 29))
sketch7.addConstraint(Sketcher.Constraint("Vertical", 31))
sketch7.addConstraint(Sketcher.Constraint("Coincident", 15, 3, 11, 3))
sketch7.addConstraint(Sketcher.Constraint("Equal", 1, 18))
sketch7.addConstraint(Sketcher.Constraint("Equal", 5, 22))
sketch7.addConstraint(Sketcher.Constraint("Equal", 22, 26))
sketch7.addConstraint(Sketcher.Constraint("Equal", 18, 30))
sketch7.addConstraint(Sketcher.Constraint("Symmetric", 5, 3, 26, 3, -1, 1))
sketch7.addConstraint(Sketcher.Constraint("Symmetric", 1, 3, 30, 3, -1, 1))
sketch7.addConstraint(Sketcher.Constraint("Symmetric", 22, 3, 26, 3, -2))
sketch7.addConstraint(Sketcher.Constraint("Symmetric", 18, 3, 30, 3, -2))
sketch7.addConstraint(Sketcher.Constraint("Horizontal", 7, 2, 8, 2))
sketch7.addConstraint(Sketcher.Constraint("Horizontal", 6, 2, 9, 2))
sketch7.addConstraint(Sketcher.Constraint("Horizontal", 23, 2, 24, 2))
sketch7.addConstraint(Sketcher.Constraint("Vertical", 7, 2, 19, 2))
sketch7.addConstraint(Sketcher.Constraint("Equal", 0, 8))
sketch7.addConstraint(Sketcher.Constraint("Equal", 3, 13))
sketch7.addConstraint(Sketcher.Constraint("Equal", 21, 27))
sketch7.addConstraint(Sketcher.Constraint("Equal", 29, 2))
sketch7.addConstraint(Sketcher.Constraint("Equal", 2, 12))
sketch7.addConstraint(Sketcher.Constraint("Equal", 14, 17))
sketch7.addConstraint(Sketcher.Constraint("Radius", 1, 5.999999))
sketch7.addConstraint(Sketcher.Constraint("Radius", 5, 3.000001))
sketch7.addConstraint(Sketcher.Constraint("Radius", 15, 8.000001))
sketch7.addConstraint(Sketcher.Constraint("Radius", 11, 5.200001))
sketch7.addConstraint(Sketcher.Constraint("DistanceX", 0, 2, 0, 1, 10.0))
sketch7.addConstraint(Sketcher.Constraint("DistanceX", -1, 1, 11, 3, 79.999999))
sketch7.addConstraint(Sketcher.Constraint("DistanceY", 18, 3, 5, 3, 151.0))
sketch7.addConstraint(Sketcher.Constraint("DistanceX", 16, 2, 30, 3, 115.000001))
pocket4 = body.newObject("PartDesign::Pocket", "Pocket003")
pocket4.Profile = sketch7
pocket4.Length = 4

sketch8 = body.newObject("Sketcher::SketchObject", "Sketch007")
sketch8.AttachmentSupport = (doc.getObject("XZ_Plane"), [""])
sketch8.MapMode = "FlatFace"
sketch8.AttachmentOffset = App.Placement(App.Vector(0, 0, 65.4), App.Rotation())
sketch8.addGeometry(Part.LineSegment(App.Vector(-60.5, 9.4, 0), App.Vector(-60.5, 7, 0)), False)
sketch8.addGeometry(Part.LineSegment(App.Vector(-60.5, 7, 0), App.Vector(-57.7, 7, 0)), False)
sketch8.addGeometry(Part.LineSegment(App.Vector(-57.7, 7, 0), App.Vector(-57.7, 9.4, 0)), False)
sketch8.addGeometry(Part.LineSegment(App.Vector(-57.7, 9.4, 0), App.Vector(-60.5, 9.4, 0)), False)
sketch8.addConstraint(Sketcher.Constraint("Coincident", 0, 2, 1, 1))
sketch8.addConstraint(Sketcher.Constraint("Coincident", 1, 2, 2, 1))
sketch8.addConstraint(Sketcher.Constraint("Coincident", 2, 2, 3, 1))
sketch8.addConstraint(Sketcher.Constraint("Coincident", 3, 2, 0, 1))
sketch8.addConstraint(Sketcher.Constraint("Vertical", 0))
sketch8.addConstraint(Sketcher.Constraint("Horizontal", 1))
sketch8.addConstraint(Sketcher.Constraint("Vertical", 2))
sketch8.addConstraint(Sketcher.Constraint("Horizontal", 3))
sketch8.addConstraint(Sketcher.Constraint("DistanceX", 1, 1, 1, 2, 2.8))
sketch8.addConstraint(Sketcher.Constraint("DistanceY", 0, 2, 0, 1, 2.4))
sketch8.addConstraint(Sketcher.Constraint("DistanceY", -1, 1, 0, 2, 7.0))
sketch8.addConstraint(Sketcher.Constraint("DistanceX", 0, 2, -1, 1, 60.5))

sketch9 = body.newObject("Sketcher::SketchObject", "Sketch008")
sketch9.AttachmentSupport = (doc.getObject("XZ_Plane"), [""])
sketch9.MapMode = "FlatFace"
sketch9.AttachmentOffset = App.Placement(App.Vector(0, 0, 64.8), App.Rotation())
sketch9.addGeometry(Part.LineSegment(App.Vector(-60.5, 9, 0), App.Vector(-60.5, 7.4, 0)), False)
sketch9.addGeometry(Part.LineSegment(App.Vector(-60.5, 7.4, 0), App.Vector(-57.7, 7.4, 0)), False)
sketch9.addGeometry(Part.LineSegment(App.Vector(-57.7, 7.4, 0), App.Vector(-57.7, 9, 0)), False)
sketch9.addGeometry(Part.LineSegment(App.Vector(-57.7, 9, 0), App.Vector(-60.5, 9, 0)), False)
sketch9.addConstraint(Sketcher.Constraint("Coincident", 0, 2, 1, 1))
sketch9.addConstraint(Sketcher.Constraint("Coincident", 1, 2, 2, 1))
sketch9.addConstraint(Sketcher.Constraint("Coincident", 2, 2, 3, 1))
sketch9.addConstraint(Sketcher.Constraint("Coincident", 3, 2, 0, 1))
sketch9.addConstraint(Sketcher.Constraint("Vertical", 0))
sketch9.addConstraint(Sketcher.Constraint("Horizontal", 1))
sketch9.addConstraint(Sketcher.Constraint("Vertical", 2))
sketch9.addConstraint(Sketcher.Constraint("Horizontal", 3))
sketch9.addConstraint(Sketcher.Constraint("DistanceX", 1, 1, 1, 2, 2.8))
sketch9.addConstraint(Sketcher.Constraint("DistanceY", 0, 2, 0, 1, 1.6))
sketch9.addConstraint(Sketcher.Constraint("DistanceY", -1, 1, 2, 2, 9.0))
sketch9.addConstraint(Sketcher.Constraint("DistanceX", 0, 2, -1, 1, 60.5))

subtractiveloft = body.newObject("PartDesign::SubtractiveLoft", "SubtractiveLoft")
subtractiveloft.Profile = sketch8
subtractiveloft.Sections = [sketch9]

sketch10 = body.newObject("Sketcher::SketchObject", "Sketch009")
sketch10.AttachmentSupport = (doc.getObject("XZ_Plane"), [""])
sketch10.MapMode = "FlatFace"
sketch10.AttachmentOffset = App.Placement(App.Vector(0, 0, 65.4), App.Rotation())
sketch10.addGeometry(Part.LineSegment(App.Vector(57.7, 9.4, 0), App.Vector(57.7, 7, 0)), False)
sketch10.addGeometry(Part.LineSegment(App.Vector(57.7, 7, 0), App.Vector(60.5, 7, 0)), False)
sketch10.addGeometry(Part.LineSegment(App.Vector(60.5, 7, 0), App.Vector(60.5, 9.4, 0)), False)
sketch10.addGeometry(Part.LineSegment(App.Vector(60.5, 9.4, 0), App.Vector(57.7, 9.4, 0)), False)
sketch10.addConstraint(Sketcher.Constraint("Coincident", 0, 2, 1, 1))
sketch10.addConstraint(Sketcher.Constraint("Coincident", 1, 2, 2, 1))
sketch10.addConstraint(Sketcher.Constraint("Coincident", 2, 2, 3, 1))
sketch10.addConstraint(Sketcher.Constraint("Coincident", 3, 2, 0, 1))
sketch10.addConstraint(Sketcher.Constraint("Vertical", 0))
sketch10.addConstraint(Sketcher.Constraint("Horizontal", 1))
sketch10.addConstraint(Sketcher.Constraint("Vertical", 2))
sketch10.addConstraint(Sketcher.Constraint("Horizontal", 3))
sketch10.addConstraint(Sketcher.Constraint("DistanceX", 1, 1, 1, 2, 2.8))
sketch10.addConstraint(Sketcher.Constraint("DistanceY", 0, 2, 0, 1, 2.4))
sketch10.addConstraint(Sketcher.Constraint("DistanceY", -1, 1, 0, 2, 7.0))
sketch10.addConstraint(Sketcher.Constraint("DistanceX", -1, 1, 0, 2, 57.7))

sketch11 = body.newObject("Sketcher::SketchObject", "Sketch010")
sketch11.AttachmentSupport = (doc.getObject("XZ_Plane"), [""])
sketch11.MapMode = "FlatFace"
sketch11.AttachmentOffset = App.Placement(App.Vector(0, 0, 64.8), App.Rotation())
sketch11.addGeometry(Part.LineSegment(App.Vector(57.7, 9, 0), App.Vector(57.7, 7.4, 0)), False)
sketch11.addGeometry(Part.LineSegment(App.Vector(57.7, 7.4, 0), App.Vector(60.5, 7.4, 0)), False)
sketch11.addGeometry(Part.LineSegment(App.Vector(60.5, 7.4, 0), App.Vector(60.5, 9, 0)), False)
sketch11.addGeometry(Part.LineSegment(App.Vector(60.5, 9, 0), App.Vector(57.7, 9, 0)), False)
sketch11.addConstraint(Sketcher.Constraint("Coincident", 0, 2, 1, 1))
sketch11.addConstraint(Sketcher.Constraint("Coincident", 1, 2, 2, 1))
sketch11.addConstraint(Sketcher.Constraint("Coincident", 2, 2, 3, 1))
sketch11.addConstraint(Sketcher.Constraint("Coincident", 3, 2, 0, 1))
sketch11.addConstraint(Sketcher.Constraint("Vertical", 0))
sketch11.addConstraint(Sketcher.Constraint("Horizontal", 1))
sketch11.addConstraint(Sketcher.Constraint("Vertical", 2))
sketch11.addConstraint(Sketcher.Constraint("Horizontal", 3))
sketch11.addConstraint(Sketcher.Constraint("DistanceX", 1, 1, 1, 2, 2.8))
sketch11.addConstraint(Sketcher.Constraint("DistanceY", 0, 2, 0, 1, 1.6))
sketch11.addConstraint(Sketcher.Constraint("DistanceY", -1, 1, 2, 2, 9.0))
sketch11.addConstraint(Sketcher.Constraint("DistanceX", -1, 1, 0, 2, 57.7))

subtractiveloft2 = body.newObject("PartDesign::SubtractiveLoft", "SubtractiveLoft001")
subtractiveloft2.Profile = sketch10
subtractiveloft2.Sections = [sketch11]

sketch12 = body.newObject("Sketcher::SketchObject", "Sketch011")
sketch12.AttachmentSupport = (doc.getObject("XZ_Plane"), [""])
sketch12.MapMode = "FlatFace"
sketch12.AttachmentOffset = App.Placement(App.Vector(0, 0, -65.4), App.Rotation())
sketch12.addGeometry(Part.LineSegment(App.Vector(-57.7, 9.4, 0), App.Vector(-57.7, 7, 0)), False)
sketch12.addGeometry(Part.LineSegment(App.Vector(-57.7, 7, 0), App.Vector(-60.5, 7, 0)), False)
sketch12.addGeometry(Part.LineSegment(App.Vector(-60.5, 7, 0), App.Vector(-60.5, 9.4, 0)), False)
sketch12.addGeometry(Part.LineSegment(App.Vector(-60.5, 9.4, 0), App.Vector(-57.7, 9.4, 0)), False)
sketch12.addConstraint(Sketcher.Constraint("Coincident", 0, 2, 1, 1))
sketch12.addConstraint(Sketcher.Constraint("Coincident", 1, 2, 2, 1))
sketch12.addConstraint(Sketcher.Constraint("Coincident", 2, 2, 3, 1))
sketch12.addConstraint(Sketcher.Constraint("Coincident", 3, 2, 0, 1))
sketch12.addConstraint(Sketcher.Constraint("Vertical", 0))
sketch12.addConstraint(Sketcher.Constraint("Horizontal", 1))
sketch12.addConstraint(Sketcher.Constraint("Vertical", 2))
sketch12.addConstraint(Sketcher.Constraint("Horizontal", 3))
sketch12.addConstraint(Sketcher.Constraint("DistanceX", 1, 2, 1, 1, 2.8))
sketch12.addConstraint(Sketcher.Constraint("DistanceY", 0, 2, 0, 1, 2.4))
sketch12.addConstraint(Sketcher.Constraint("DistanceY", -1, 1, 0, 2, 7.0))
sketch12.addConstraint(Sketcher.Constraint("DistanceX", 0, 2, -1, 1, 57.7))

sketch13 = body.newObject("Sketcher::SketchObject", "Sketch012")
sketch13.AttachmentSupport = (doc.getObject("XZ_Plane"), [""])
sketch13.MapMode = "FlatFace"
sketch13.AttachmentOffset = App.Placement(App.Vector(0, 0, -64.8), App.Rotation())
sketch13.addGeometry(Part.LineSegment(App.Vector(-57.7, 9, 0), App.Vector(-57.7, 7.4, 0)), False)
sketch13.addGeometry(Part.LineSegment(App.Vector(-57.7, 7.4, 0), App.Vector(-60.5, 7.4, 0)), False)
sketch13.addGeometry(Part.LineSegment(App.Vector(-60.5, 7.4, 0), App.Vector(-60.5, 9, 0)), False)
sketch13.addGeometry(Part.LineSegment(App.Vector(-60.5, 9, 0), App.Vector(-57.7, 9, 0)), False)
sketch13.addConstraint(Sketcher.Constraint("Coincident", 0, 2, 1, 1))
sketch13.addConstraint(Sketcher.Constraint("Coincident", 1, 2, 2, 1))
sketch13.addConstraint(Sketcher.Constraint("Coincident", 2, 2, 3, 1))
sketch13.addConstraint(Sketcher.Constraint("Coincident", 3, 2, 0, 1))
sketch13.addConstraint(Sketcher.Constraint("Vertical", 0))
sketch13.addConstraint(Sketcher.Constraint("Horizontal", 1))
sketch13.addConstraint(Sketcher.Constraint("Vertical", 2))
sketch13.addConstraint(Sketcher.Constraint("Horizontal", 3))
sketch13.addConstraint(Sketcher.Constraint("DistanceX", 1, 2, 1, 1, 2.8))
sketch13.addConstraint(Sketcher.Constraint("DistanceY", 0, 2, 0, 1, 1.6))
sketch13.addConstraint(Sketcher.Constraint("DistanceY", -1, 1, 2, 2, 9.0))
sketch13.addConstraint(Sketcher.Constraint("DistanceX", 0, 2, -1, 1, 57.7))

subtractiveloft3 = body.newObject("PartDesign::SubtractiveLoft", "SubtractiveLoft002")
subtractiveloft3.Profile = sketch12
subtractiveloft3.Sections = [sketch13]

sketch14 = body.newObject("Sketcher::SketchObject", "Sketch013")
sketch14.AttachmentSupport = (doc.getObject("XZ_Plane"), [""])
sketch14.MapMode = "FlatFace"
sketch14.AttachmentOffset = App.Placement(App.Vector(0, 0, -63.4), App.Rotation())
sketch14.addGeometry(Part.LineSegment(App.Vector(88, 9.4, 0), App.Vector(88, 7, 0)), False)
sketch14.addGeometry(Part.LineSegment(App.Vector(88, 7, 0), App.Vector(85.2, 7, 0)), False)
sketch14.addGeometry(Part.LineSegment(App.Vector(85.2, 7, 0), App.Vector(85.2, 9.4, 0)), False)
sketch14.addGeometry(Part.LineSegment(App.Vector(85.2, 9.4, 0), App.Vector(88, 9.4, 0)), False)
sketch14.addConstraint(Sketcher.Constraint("Coincident", 0, 2, 1, 1))
sketch14.addConstraint(Sketcher.Constraint("Coincident", 1, 2, 2, 1))
sketch14.addConstraint(Sketcher.Constraint("Coincident", 2, 2, 3, 1))
sketch14.addConstraint(Sketcher.Constraint("Coincident", 3, 2, 0, 1))
sketch14.addConstraint(Sketcher.Constraint("Vertical", 0))
sketch14.addConstraint(Sketcher.Constraint("Horizontal", 1))
sketch14.addConstraint(Sketcher.Constraint("Vertical", 2))
sketch14.addConstraint(Sketcher.Constraint("Horizontal", 3))
sketch14.addConstraint(Sketcher.Constraint("DistanceX", 1, 2, 1, 1, 2.8))
sketch14.addConstraint(Sketcher.Constraint("DistanceY", 0, 2, 0, 1, 2.4))
sketch14.addConstraint(Sketcher.Constraint("DistanceX", -1, 1, 0, 2, 88.0))
sketch14.addConstraint(Sketcher.Constraint("DistanceY", -1, 1, 0, 2, 7.0))

sketch15 = body.newObject("Sketcher::SketchObject", "Sketch014")
sketch15.AttachmentSupport = (doc.getObject("XZ_Plane"), [""])
sketch15.MapMode = "FlatFace"
sketch15.AttachmentOffset = App.Placement(App.Vector(0, 0, -62.8), App.Rotation())
sketch15.addGeometry(Part.LineSegment(App.Vector(88, 9, 0), App.Vector(88, 7.4, 0)), False)
sketch15.addGeometry(Part.LineSegment(App.Vector(88, 7.4, 0), App.Vector(85.2, 7.4, 0)), False)
sketch15.addGeometry(Part.LineSegment(App.Vector(85.2, 7.4, 0), App.Vector(85.2, 9, 0)), False)
sketch15.addGeometry(Part.LineSegment(App.Vector(85.2, 9, 0), App.Vector(88, 9, 0)), False)
sketch15.addConstraint(Sketcher.Constraint("Coincident", 0, 2, 1, 1))
sketch15.addConstraint(Sketcher.Constraint("Coincident", 1, 2, 2, 1))
sketch15.addConstraint(Sketcher.Constraint("Coincident", 2, 2, 3, 1))
sketch15.addConstraint(Sketcher.Constraint("Coincident", 3, 2, 0, 1))
sketch15.addConstraint(Sketcher.Constraint("Vertical", 0))
sketch15.addConstraint(Sketcher.Constraint("Horizontal", 1))
sketch15.addConstraint(Sketcher.Constraint("Vertical", 2))
sketch15.addConstraint(Sketcher.Constraint("Horizontal", 3))
sketch15.addConstraint(Sketcher.Constraint("DistanceX", 1, 2, 1, 1, 2.8))
sketch15.addConstraint(Sketcher.Constraint("DistanceY", 0, 2, 0, 1, 1.6))
sketch15.addConstraint(Sketcher.Constraint("DistanceX", -1, 1, 0, 2, 88.0))
sketch15.addConstraint(Sketcher.Constraint("DistanceY", -1, 1, 2, 2, 9.0))

subtractiveloft4 = body.newObject("PartDesign::SubtractiveLoft", "SubtractiveLoft003")
subtractiveloft4.Profile = sketch14
subtractiveloft4.Sections = [sketch15]
doc.recompute()

chamfer = body.newObject("PartDesign::Chamfer", "Chamfer")
chamfer.Base = (subtractiveloft4, edges_at(subtractiveloft4, [
    (-10.75, 20.8, 5),
    (-10.75, 65.7, 5),
    (78.75, 65.7, 5),
    (78.75, 20.8, 5),
]))
chamfer.Size = 1

sketch16 = body.newObject("Sketcher::SketchObject", "Sketch015")
sketch16.AttachmentSupport = (doc.getObject("XY_Plane"), [""])
sketch16.MapMode = "FlatFace"
sketch16.AttachmentOffset = App.Placement(App.Vector(0, 0, 6), App.Rotation())
sketch16.addGeometry(Part.Circle(App.Vector(-14, 69.1, 0), App.Vector(0, 0, 1), 1.2), False)
sketch16.addGeometry(Part.Circle(App.Vector(-14, 17.4, 0), App.Vector(0, 0, 1), 1.2), False)
sketch16.addGeometry(Part.Circle(App.Vector(82, 17.4, 0), App.Vector(0, 0, 1), 1.2), False)
sketch16.addGeometry(Part.Circle(App.Vector(82, 69.1, 0), App.Vector(0, 0, 1), 1.2), False)
sketch16.addConstraint(Sketcher.Constraint("Equal", 0, 1))
sketch16.addConstraint(Sketcher.Constraint("Equal", 1, 2))
sketch16.addConstraint(Sketcher.Constraint("Equal", 2, 3))
sketch16.addConstraint(Sketcher.Constraint("Horizontal", 1, 3, 2, 3))
sketch16.addConstraint(Sketcher.Constraint("Horizontal", 0, 3, 3, 3))
sketch16.addConstraint(Sketcher.Constraint("Vertical", 0, 3, 1, 3))
sketch16.addConstraint(Sketcher.Constraint("Vertical", 2, 3, 3, 3))
sketch16.addConstraint(Sketcher.Constraint("Diameter", 0, 2.4))
sketch16.addConstraint(Sketcher.Constraint("DistanceX", 0, 3, -1, 1, 14.0))
sketch16.addConstraint(Sketcher.Constraint("DistanceX", -1, 1, 2, 3, 82.0))
sketch16.addConstraint(Sketcher.Constraint("DistanceY", -1, 1, 0, 3, 69.1))
sketch16.addConstraint(Sketcher.Constraint("DistanceY", -1, 1, 1, 3, 17.4))
pocket5 = body.newObject("PartDesign::Pocket", "Pocket004")
pocket5.Profile = sketch16
pocket5.Length = 4

sketch17 = body.newObject("Sketcher::SketchObject", "Sketch016")
sketch17.AttachmentSupport = (doc.getObject("XZ_Plane"), [""])
sketch17.MapMode = "FlatFace"
sketch17.AttachmentOffset = App.Placement(App.Vector(0, 0, 81.4), App.Rotation())
sketch17.addGeometry(Part.Circle(App.Vector(-2, 4, 0), App.Vector(0, 0, 1), 1.2), False)
sketch17.addGeometry(Part.Circle(App.Vector(2, 4, 0), App.Vector(0, 0, 1), 1.2), False)
sketch17.addConstraint(Sketcher.Constraint("Equal", 0, 1))
sketch17.addConstraint(Sketcher.Constraint("Symmetric", 0, 3, 1, 3, -2))
sketch17.addConstraint(Sketcher.Constraint("Diameter", 0, 2.4))
sketch17.addConstraint(Sketcher.Constraint("DistanceX", 0, 3, -1, 1, 2.0))
sketch17.addConstraint(Sketcher.Constraint("DistanceY", -1, 1, 0, 3, 4.0))
pocket6 = body.newObject("PartDesign::Pocket", "Pocket005")
pocket6.Profile = sketch17
pocket6.Length = 3

sketch18 = body.newObject("Sketcher::SketchObject", "Sketch017")
sketch18.AttachmentSupport = (doc.getObject("XZ_Plane"), [""])
sketch18.MapMode = "FlatFace"
sketch18.AttachmentOffset = App.Placement(App.Vector(0, 0, -78.6), App.Rotation())
sketch18.addGeometry(Part.Circle(App.Vector(63, 6, 0), App.Vector(0, 0, 1), 1.8), False)
sketch18.addGeometry(Part.LineSegment(App.Vector(70, 7, 0), App.Vector(70, 5, 0)), False)
sketch18.addGeometry(Part.LineSegment(App.Vector(70, 5, 0), App.Vector(80, 5, 0)), False)
sketch18.addGeometry(Part.LineSegment(App.Vector(80, 5, 0), App.Vector(80, 7, 0)), False)
sketch18.addGeometry(Part.LineSegment(App.Vector(80, 7, 0), App.Vector(70, 7, 0)), False)
sketch18.addConstraint(Sketcher.Constraint("Coincident", 1, 2, 2, 1))
sketch18.addConstraint(Sketcher.Constraint("Coincident", 2, 2, 3, 1))
sketch18.addConstraint(Sketcher.Constraint("Coincident", 3, 2, 4, 1))
sketch18.addConstraint(Sketcher.Constraint("Coincident", 4, 2, 1, 1))
sketch18.addConstraint(Sketcher.Constraint("Vertical", 1))
sketch18.addConstraint(Sketcher.Constraint("Horizontal", 2))
sketch18.addConstraint(Sketcher.Constraint("Vertical", 3))
sketch18.addConstraint(Sketcher.Constraint("Horizontal", 4))
sketch18.addConstraint(Sketcher.Constraint("Diameter", 0, 3.6))
sketch18.addConstraint(Sketcher.Constraint("DistanceX", 2, 1, 2, 2, 10.0))
sketch18.addConstraint(Sketcher.Constraint("DistanceY", 1, 2, 1, 1, 2.0))
sketch18.addConstraint(Sketcher.Constraint("DistanceX", -1, 1, 0, 3, 63.0))
sketch18.addConstraint(Sketcher.Constraint("DistanceY", -1, 1, 0, 3, 6.0))
sketch18.addConstraint(Sketcher.Constraint("DistanceX", -1, 1, 1, 2, 70.0))
sketch18.addConstraint(Sketcher.Constraint("DistanceY", -1, 1, 1, 2, 5.0))
pocket7 = body.newObject("PartDesign::Pocket", "Pocket006")
pocket7.Profile = sketch18
pocket7.Length = 3

sketch19 = body.newObject("Sketcher::SketchObject", "Sketch018")
sketch19.AttachmentSupport = (doc.getObject("XY_Plane"), [""])
sketch19.MapMode = "FlatFace"
sketch19.AttachmentOffset = App.Placement(App.Vector(0, 0, 4), App.Rotation())
sketch19.addGeometry(Part.LineSegment(App.Vector(-12.75, 62.5, 0), App.Vector(-12.75, 24, 0)), False)
sketch19.addGeometry(Part.LineSegment(App.Vector(-12.75, 24, 0), App.Vector(-10.75, 24, 0)), False)
sketch19.addGeometry(Part.LineSegment(App.Vector(-10.75, 24, 0), App.Vector(-10.75, 62.5, 0)), False)
sketch19.addGeometry(Part.LineSegment(App.Vector(-10.75, 62.5, 0), App.Vector(-12.75, 62.5, 0)), False)
sketch19.addConstraint(Sketcher.Constraint("Coincident", 0, 2, 1, 1))
sketch19.addConstraint(Sketcher.Constraint("Coincident", 1, 2, 2, 1))
sketch19.addConstraint(Sketcher.Constraint("Coincident", 2, 2, 3, 1))
sketch19.addConstraint(Sketcher.Constraint("Coincident", 3, 2, 0, 1))
sketch19.addConstraint(Sketcher.Constraint("Vertical", 0))
sketch19.addConstraint(Sketcher.Constraint("Horizontal", 1))
sketch19.addConstraint(Sketcher.Constraint("Vertical", 2))
sketch19.addConstraint(Sketcher.Constraint("Horizontal", 3))
sketch19.addConstraint(Sketcher.Constraint("DistanceX", 1, 1, 1, 2, 2.0))
sketch19.addConstraint(Sketcher.Constraint("DistanceY", 0, 2, 0, 1, 38.5))
sketch19.addConstraint(Sketcher.Constraint("DistanceY", -1, 1, 0, 2, 24.0))
sketch19.addConstraint(Sketcher.Constraint("DistanceX", 0, 2, -1, 1, 12.75))
pocket8 = body.newObject("PartDesign::Pocket", "Pocket007")
pocket8.Profile = sketch19
pocket8.Length = 1.2
doc.recompute()

chamfer2 = body.newObject("PartDesign::Chamfer", "Chamfer001")
chamfer2.Base = (pocket8, edges_at(pocket8, [(0, -81.4, 9), (0, 81.4, 9)]))
chamfer2.Size = 1.4

doc.recompute()
